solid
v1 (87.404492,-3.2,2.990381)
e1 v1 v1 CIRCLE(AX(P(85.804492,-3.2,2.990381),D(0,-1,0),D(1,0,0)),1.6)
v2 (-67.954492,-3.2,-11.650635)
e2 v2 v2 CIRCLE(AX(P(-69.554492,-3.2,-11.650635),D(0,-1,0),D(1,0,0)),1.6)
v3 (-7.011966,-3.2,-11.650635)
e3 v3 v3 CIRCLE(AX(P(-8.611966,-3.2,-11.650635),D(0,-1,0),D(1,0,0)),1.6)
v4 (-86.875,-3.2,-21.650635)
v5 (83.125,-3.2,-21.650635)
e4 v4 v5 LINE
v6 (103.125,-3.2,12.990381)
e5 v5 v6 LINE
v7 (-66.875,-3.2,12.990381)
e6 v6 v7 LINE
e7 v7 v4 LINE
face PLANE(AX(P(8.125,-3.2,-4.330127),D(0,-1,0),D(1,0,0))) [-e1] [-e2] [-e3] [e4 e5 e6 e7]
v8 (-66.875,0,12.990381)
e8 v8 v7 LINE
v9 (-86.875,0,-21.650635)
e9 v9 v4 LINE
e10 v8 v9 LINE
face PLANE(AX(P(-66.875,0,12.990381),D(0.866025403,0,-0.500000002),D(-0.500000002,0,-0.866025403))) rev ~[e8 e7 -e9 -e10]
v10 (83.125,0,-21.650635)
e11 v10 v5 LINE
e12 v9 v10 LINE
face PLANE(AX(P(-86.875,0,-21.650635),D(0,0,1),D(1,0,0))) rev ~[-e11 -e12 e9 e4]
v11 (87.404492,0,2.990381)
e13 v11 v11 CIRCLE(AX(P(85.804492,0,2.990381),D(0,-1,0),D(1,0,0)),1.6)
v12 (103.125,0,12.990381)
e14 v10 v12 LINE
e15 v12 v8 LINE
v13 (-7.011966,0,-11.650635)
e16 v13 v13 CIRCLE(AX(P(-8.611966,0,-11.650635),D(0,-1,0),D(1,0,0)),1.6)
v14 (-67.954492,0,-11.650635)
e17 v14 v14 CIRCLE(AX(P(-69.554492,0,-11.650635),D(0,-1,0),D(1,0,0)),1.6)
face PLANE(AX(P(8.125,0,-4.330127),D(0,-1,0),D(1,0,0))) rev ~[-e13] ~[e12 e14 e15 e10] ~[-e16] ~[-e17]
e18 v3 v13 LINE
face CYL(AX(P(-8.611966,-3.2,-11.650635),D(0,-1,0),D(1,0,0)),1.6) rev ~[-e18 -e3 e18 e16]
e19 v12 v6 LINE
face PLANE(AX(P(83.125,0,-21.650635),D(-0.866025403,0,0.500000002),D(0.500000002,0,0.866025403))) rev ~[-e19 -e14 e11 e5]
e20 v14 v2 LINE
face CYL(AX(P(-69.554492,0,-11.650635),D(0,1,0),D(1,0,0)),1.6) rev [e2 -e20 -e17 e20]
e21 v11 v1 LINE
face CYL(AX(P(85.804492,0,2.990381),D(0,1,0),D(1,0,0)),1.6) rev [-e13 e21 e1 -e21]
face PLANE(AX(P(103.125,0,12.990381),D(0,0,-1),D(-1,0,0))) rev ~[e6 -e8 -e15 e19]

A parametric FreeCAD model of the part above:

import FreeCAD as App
import Part
import Sketcher

V = App.Vector
Q = App.Units.Quantity

doc = App.newDocument("Part")
body = doc.addObject("PartDesign::Body", "Body")

sketch1 = body.newObject("Sketcher::SketchObject", "Sketch")
sketch1.AttachmentSupport = (doc.getObject("XZ_Plane"), [""])
sketch1.MapMode = "FlatFace"
sketch1.addGeometry([
    Part.LineSegment(V(83.125, -21.650635, 0), V(103.125, 12.990381, 0)),
    Part.LineSegment(V(103.125, 12.990381, 0), V(-66.875, 12.990381, 0)),
    Part.LineSegment(V(-66.875, 12.990381, 0), V(-86.875, -21.650635, 0)),
    Part.LineSegment(V(-86.875, -21.650635, 0), V(83.125, -21.650635, 0)),
    Part.Circle(V(-69.554492, -11.650635, 0), V(0, 0, 1), 1.6),
    Part.Circle(V(85.804492, 2.990381, 0), V(0, 0, 1), 1.6),
], False)
sketch1.addConstraint([
    Sketcher.Constraint("Coincident", 0, 2, 1, 1),
    Sketcher.Constraint("Coincident", 1, 2, 2, 1),
    Sketcher.Constraint("Coincident", 2, 2, 3, 1),
    Sketcher.Constraint("Coincident", 3, 2, 0, 1),
    Sketcher.Constraint("Horizontal", 1),
    Sketcher.Constraint("Horizontal", 3),
    Sketcher.Constraint("Equal", 4, 5),
    Sketcher.Constraint("Parallel", 0, 2),
    Sketcher.Constraint("Diameter", 4, Q("3.2 mm")),
    Sketcher.Constraint("DistanceX", 1, 2, 1, 1, Q("170 mm")),
    Sketcher.Constraint("Angle", 0, Q("60 deg")),
    Sketcher.Constraint("Distance", 0, Q("40 mm")),
    Sketcher.Constraint("DistanceY", 5, 3, 0, 2, Q("10 mm")),
    Sketcher.Constraint("DistanceY", 2, 2, 4, 3, Q("10 mm")),
    Sketcher.Constraint("DistanceX", -1, 1, 0, 2, Q("103.125 mm")),
    Sketcher.Constraint("DistanceX", 4, 3, -1, 1, Q("69.554492 mm")),
    Sketcher.Constraint("DistanceX", -1, 1, 5, 3, Q("85.804492 mm")),
    Sketcher.Constraint("DistanceY", -1, 1, 5, 3, Q("2.990381 mm")),
])
pad1 = body.newObject("PartDesign::Pad", "Pad")
pad1.Profile = sketch1
pad1.Length = 3.2

sketch2 = body.newObject("Sketcher::SketchObject", "Sketch001")
sketch2.AttachmentSupport = (doc.getObject("XZ_Plane"), [""])
sketch2.MapMode = "FlatFace"
sketch2.AttachmentOffset = App.Placement(V(0, 0, 3.2), App.Rotation())
sketch2.addGeometry(Part.Circle(V(-8.611966, -11.650635, 0), V(0, 0, 1), 1.6), False)
sketch2.addConstraint([
    Sketcher.Constraint("Diameter", 0, Q("3.2 mm")),
    Sketcher.Constraint("DistanceX", 0, 3, -1, 1, Q("8.611966 mm")),
    Sketcher.Constraint("DistanceY", 0, 3, -1, 1, Q("11.650635 mm")),
])
pocket1 = body.newObject("PartDesign::Pocket", "Pocket")
pocket1.Profile = sketch2
pocket1.Length = 6

doc.recompute()
